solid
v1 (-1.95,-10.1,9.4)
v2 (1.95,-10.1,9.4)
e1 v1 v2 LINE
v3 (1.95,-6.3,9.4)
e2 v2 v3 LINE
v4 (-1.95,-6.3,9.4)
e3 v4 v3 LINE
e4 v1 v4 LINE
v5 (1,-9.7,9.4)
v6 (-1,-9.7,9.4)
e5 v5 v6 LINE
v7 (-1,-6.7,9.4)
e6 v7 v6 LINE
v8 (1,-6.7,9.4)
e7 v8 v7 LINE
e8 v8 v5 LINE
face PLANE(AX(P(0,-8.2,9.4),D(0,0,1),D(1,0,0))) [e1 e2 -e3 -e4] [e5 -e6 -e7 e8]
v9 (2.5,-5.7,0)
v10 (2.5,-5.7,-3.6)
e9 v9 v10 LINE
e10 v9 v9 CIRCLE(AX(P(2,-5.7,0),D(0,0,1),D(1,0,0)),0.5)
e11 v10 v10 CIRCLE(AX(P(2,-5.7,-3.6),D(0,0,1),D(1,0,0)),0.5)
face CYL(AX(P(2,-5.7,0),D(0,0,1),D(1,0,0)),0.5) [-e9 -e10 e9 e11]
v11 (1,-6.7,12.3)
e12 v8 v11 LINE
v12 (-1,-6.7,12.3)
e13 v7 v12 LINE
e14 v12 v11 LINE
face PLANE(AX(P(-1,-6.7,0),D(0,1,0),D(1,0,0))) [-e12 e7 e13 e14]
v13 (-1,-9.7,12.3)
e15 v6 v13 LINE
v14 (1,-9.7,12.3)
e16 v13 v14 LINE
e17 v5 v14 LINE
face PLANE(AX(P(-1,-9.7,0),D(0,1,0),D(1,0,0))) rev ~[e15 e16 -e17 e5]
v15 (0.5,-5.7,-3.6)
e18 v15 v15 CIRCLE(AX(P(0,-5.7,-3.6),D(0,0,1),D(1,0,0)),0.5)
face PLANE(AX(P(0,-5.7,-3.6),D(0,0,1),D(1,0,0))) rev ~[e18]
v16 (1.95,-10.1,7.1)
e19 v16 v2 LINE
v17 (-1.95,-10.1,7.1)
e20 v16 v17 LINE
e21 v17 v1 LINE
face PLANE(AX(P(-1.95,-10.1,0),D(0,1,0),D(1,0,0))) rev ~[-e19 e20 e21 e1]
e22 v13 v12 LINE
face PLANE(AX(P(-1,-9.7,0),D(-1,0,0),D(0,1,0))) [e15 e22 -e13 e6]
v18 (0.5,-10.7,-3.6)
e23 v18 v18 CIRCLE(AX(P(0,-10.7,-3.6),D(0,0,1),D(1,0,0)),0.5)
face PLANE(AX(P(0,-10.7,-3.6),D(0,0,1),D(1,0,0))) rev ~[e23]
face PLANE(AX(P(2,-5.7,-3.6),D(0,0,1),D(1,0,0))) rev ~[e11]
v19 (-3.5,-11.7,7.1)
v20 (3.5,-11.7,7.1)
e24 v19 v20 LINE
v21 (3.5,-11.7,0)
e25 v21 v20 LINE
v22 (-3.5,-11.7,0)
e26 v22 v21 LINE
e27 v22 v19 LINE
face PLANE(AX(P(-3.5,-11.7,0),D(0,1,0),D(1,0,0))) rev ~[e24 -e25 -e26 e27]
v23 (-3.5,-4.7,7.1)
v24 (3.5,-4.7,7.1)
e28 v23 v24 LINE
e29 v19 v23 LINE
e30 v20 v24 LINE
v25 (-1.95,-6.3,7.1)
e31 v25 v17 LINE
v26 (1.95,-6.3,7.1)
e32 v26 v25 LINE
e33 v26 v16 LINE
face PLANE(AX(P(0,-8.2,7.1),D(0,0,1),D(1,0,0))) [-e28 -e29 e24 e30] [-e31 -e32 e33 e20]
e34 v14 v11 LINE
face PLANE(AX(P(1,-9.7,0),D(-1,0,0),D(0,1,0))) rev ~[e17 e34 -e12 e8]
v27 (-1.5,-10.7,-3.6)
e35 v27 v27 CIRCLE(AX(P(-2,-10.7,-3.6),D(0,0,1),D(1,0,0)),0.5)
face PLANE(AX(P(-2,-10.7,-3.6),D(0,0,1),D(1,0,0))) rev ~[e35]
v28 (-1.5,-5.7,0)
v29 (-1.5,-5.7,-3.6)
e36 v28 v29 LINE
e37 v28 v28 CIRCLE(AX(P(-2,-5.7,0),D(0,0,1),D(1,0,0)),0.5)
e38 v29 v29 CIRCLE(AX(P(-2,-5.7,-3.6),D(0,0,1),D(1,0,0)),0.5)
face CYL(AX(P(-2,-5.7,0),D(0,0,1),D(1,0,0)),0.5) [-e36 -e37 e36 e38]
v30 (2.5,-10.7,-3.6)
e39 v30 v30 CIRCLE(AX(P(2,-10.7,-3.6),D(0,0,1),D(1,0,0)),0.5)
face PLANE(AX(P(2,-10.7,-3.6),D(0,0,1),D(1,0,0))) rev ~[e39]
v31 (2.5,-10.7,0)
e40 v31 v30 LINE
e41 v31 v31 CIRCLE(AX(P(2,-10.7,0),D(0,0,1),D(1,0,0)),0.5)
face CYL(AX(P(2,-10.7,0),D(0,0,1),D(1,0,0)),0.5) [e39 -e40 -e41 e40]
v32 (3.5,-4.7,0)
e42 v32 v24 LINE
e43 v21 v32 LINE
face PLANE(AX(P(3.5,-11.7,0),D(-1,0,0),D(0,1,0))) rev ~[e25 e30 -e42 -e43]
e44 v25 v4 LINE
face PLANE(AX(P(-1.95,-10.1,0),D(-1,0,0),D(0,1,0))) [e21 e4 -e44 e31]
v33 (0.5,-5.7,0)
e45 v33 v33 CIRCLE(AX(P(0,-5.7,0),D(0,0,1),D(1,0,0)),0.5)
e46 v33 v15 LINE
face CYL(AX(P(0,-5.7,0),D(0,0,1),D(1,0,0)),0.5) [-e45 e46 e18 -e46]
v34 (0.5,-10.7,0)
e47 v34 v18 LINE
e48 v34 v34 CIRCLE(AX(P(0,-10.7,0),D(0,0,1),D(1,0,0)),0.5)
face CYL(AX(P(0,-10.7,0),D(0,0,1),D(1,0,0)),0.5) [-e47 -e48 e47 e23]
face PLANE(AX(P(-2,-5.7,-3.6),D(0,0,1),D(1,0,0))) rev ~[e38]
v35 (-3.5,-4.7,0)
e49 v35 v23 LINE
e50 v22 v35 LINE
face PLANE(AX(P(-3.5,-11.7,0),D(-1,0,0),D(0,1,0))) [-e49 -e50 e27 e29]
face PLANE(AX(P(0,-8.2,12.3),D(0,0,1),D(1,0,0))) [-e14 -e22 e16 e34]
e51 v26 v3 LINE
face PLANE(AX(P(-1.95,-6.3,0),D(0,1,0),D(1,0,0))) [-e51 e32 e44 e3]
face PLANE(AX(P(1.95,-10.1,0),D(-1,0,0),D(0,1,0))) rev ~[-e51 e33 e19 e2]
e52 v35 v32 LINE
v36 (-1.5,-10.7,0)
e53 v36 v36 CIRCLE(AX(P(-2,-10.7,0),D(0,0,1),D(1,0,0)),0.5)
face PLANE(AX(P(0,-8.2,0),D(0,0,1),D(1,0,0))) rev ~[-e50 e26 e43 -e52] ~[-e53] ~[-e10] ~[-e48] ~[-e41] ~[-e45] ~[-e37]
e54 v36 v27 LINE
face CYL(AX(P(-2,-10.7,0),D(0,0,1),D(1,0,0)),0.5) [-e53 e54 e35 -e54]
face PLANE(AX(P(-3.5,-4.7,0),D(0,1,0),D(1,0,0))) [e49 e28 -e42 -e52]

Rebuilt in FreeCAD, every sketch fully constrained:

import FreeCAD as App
import Part
import Sketcher

V = App.Vector

doc = App.newDocument("Part")
body = doc.addObject("PartDesign::Body", "Body")

# Sketch on XY plane
sketch1 = body.newObject("Sketcher::SketchObject", "Sketch")
sketch1.AttachmentSupport = (doc.getObject("XY_Plane"), [""])
sketch1.MapMode = "FlatFace"
sketch1.addGeometry(Part.LineSegment(V(-4, 4, 0), V(-4, -4, 0)), False)
sketch1.addGeometry(Part.LineSegment(V(-4, -4, 0), V(4, -4, 0)), False)
sketch1.addGeometry(Part.LineSegment(V(4, -4, 0), V(4, 4, 0)), False)
sketch1.addGeometry(Part.LineSegment(V(4, 4, 0), V(-4, 4, 0)), False)
sketch1.addConstraint(Sketcher.Constraint("Coincident", 0, 2, 1, 1))
sketch1.addConstraint(Sketcher.Constraint("Coincident", 1, 2, 2, 1))
sketch1.addConstraint(Sketcher.Constraint("Coincident", 2, 2, 3, 1))
sketch1.addConstraint(Sketcher.Constraint("Coincident", 3, 2, 0, 1))
sketch1.addConstraint(Sketcher.Constraint("Vertical", 0))
sketch1.addConstraint(Sketcher.Constraint("Horizontal", 1))
sketch1.addConstraint(Sketcher.Constraint("Vertical", 2))
sketch1.addConstraint(Sketcher.Constraint("Horizontal", 3))
sketch1.addConstraint(Sketcher.Constraint("Symmetric", 0, 2, 2, 2, -1, 1))
sketch1.addConstraint(Sketcher.Constraint("Equal", 3, 0))
sketch1.addConstraint(Sketcher.Constraint("DistanceX", 1, 1, 1, 2, 7.0))
pad1 = body.newObject("PartDesign::Pad", "Pad")
pad1.Profile = sketch1
pad1.Length = 7.1

# Sketch on XY plane
sketch2 = body.newObject("Sketcher::SketchObject", "Sketch001")
sketch2.AttachmentSupport = (doc.getObject("XY_Plane"), [""])
sketch2.MapMode = "FlatFace"
sketch2.addGeometry(Part.Circle(V(0, 2.5, 0), V(0, 0, 1), 0.5), False)
sketch2.addGeometry(Part.Circle(V(0, -2.5, 0), V(0, 0, 1), 0.5), False)
sketch2.addGeometry(Part.Circle(V(2, 2.5, 0), V(0, 0, 1), 0.5), False)
sketch2.addGeometry(Part.Circle(V(-2, 2.5, 0), V(0, 0, 1), 0.5), False)
sketch2.addGeometry(Part.Circle(V(-2, -2.5, 0), V(0, 0, 1), 0.5), False)
sketch2.addGeometry(Part.Circle(V(2, -2.5, 0), V(0, 0, 1), 0.5), False)
sketch2.addConstraint(Sketcher.Constraint("Equal", 0, 1))
sketch2.addConstraint(Sketcher.Constraint("Equal", 1, 2))
sketch2.addConstraint(Sketcher.Constraint("Equal", 2, 3))
sketch2.addConstraint(Sketcher.Constraint("Equal", 3, 4))
sketch2.addConstraint(Sketcher.Constraint("Equal", 4, 5))
sketch2.addConstraint(Sketcher.Constraint("Symmetric", 0, 3, 1, 3, -1, 1))
sketch2.addConstraint(Sketcher.Constraint("Symmetric", 2, 3, 4, 3, -1, 1))
sketch2.addConstraint(Sketcher.Constraint("Symmetric", 3, 3, 5, 3, -1, 1))
sketch2.addConstraint(Sketcher.Constraint("Symmetric", 2, 3, 3, 3, -2))
sketch2.addConstraint(Sketcher.Constraint("PointOnObject", 0, 3, -2))
sketch2.addConstraint(Sketcher.Constraint("Horizontal", 0, 3, 2, 3))
sketch2.addConstraint(Sketcher.Constraint("Diameter", 0, 1.0))
sketch2.addConstraint(Sketcher.Constraint("DistanceX", -1, 1, 2, 3, 2.0))
sketch2.addConstraint(Sketcher.Constraint("DistanceY", 1, 3, 0, 3, 5.0))
pad2 = body.newObject("PartDesign::Pad", "Pad001")
pad2.Profile = sketch2
pad2.Length = 3.6
pad2.Reversed = True

# Sketch on XY plane
sketch3 = body.newObject("Sketcher::SketchObject", "Sketch002")
sketch3.AttachmentSupport = (doc.getObject("XY_Plane"), [""])
sketch3.MapMode = "FlatFace"
sketch3.addGeometry(Part.LineSegment(V(-1.9, 1.9, 0), V(-1.9, -1.9, 0)), False)
sketch3.addGeometry(Part.LineSegment(V(-1.9, -1.9, 0), V(1.9, -1.9, 0)), False)
sketch3.addGeometry(Part.LineSegment(V(1.9, -1.9, 0), V(1.9, 1.9, 0)), False)
sketch3.addGeometry(Part.LineSegment(V(1.9, 1.9, 0), V(-1.9, 1.9, 0)), False)
sketch3.addConstraint(Sketcher.Constraint("Coincident", 0, 2, 1, 1))
sketch3.addConstraint(Sketcher.Constraint("Coincident", 1, 2, 2, 1))
sketch3.addConstraint(Sketcher.Constraint("Coincident", 2, 2, 3, 1))
sketch3.addConstraint(Sketcher.Constraint("Coincident", 3, 2, 0, 1))
sketch3.addConstraint(Sketcher.Constraint("Vertical", 0))
sketch3.addConstraint(Sketcher.Constraint("Horizontal", 1))
sketch3.addConstraint(Sketcher.Constraint("Vertical", 2))
sketch3.addConstraint(Sketcher.Constraint("Horizontal", 3))
sketch3.addConstraint(Sketcher.Constraint("Symmetric", 0, 2, 2, 2, -1, 1))
sketch3.addConstraint(Sketcher.Constraint("DistanceX", 1, 1, 1, 2, 3.9))
sketch3.addConstraint(Sketcher.Constraint("DistanceY", 0, 2, 0, 1, 3.8))
pad3 = body.newObject("PartDesign::Pad", "Pad002")
pad3.Profile = sketch3
pad3.Length = 9.4

# Sketch on XY plane
sketch4 = body.newObject("Sketcher::SketchObject", "Sketch003")
sketch4.AttachmentSupport = (doc.getObject("XY_Plane"), [""])
sketch4.MapMode = "FlatFace"
sketch4.addGeometry(Part.LineSegment(V(-1, 1.5, 0), V(-1, -1.5, 0)), False)
sketch4.addGeometry(Part.LineSegment(V(-1, -1.5, 0), V(1, -1.5, 0)), False)
sketch4.addGeometry(Part.LineSegment(V(1, -1.5, 0), V(1, 1.5, 0)), False)
sketch4.addGeometry(Part.LineSegment(V(1, 1.5, 0), V(-1, 1.5, 0)), False)
sketch4.addConstraint(Sketcher.Constraint("Coincident", 0, 2, 1, 1))
sketch4.addConstraint(Sketcher.Constraint("Coincident", 1, 2, 2, 1))
sketch4.addConstraint(Sketcher.Constraint("Coincident", 2, 2, 3, 1))
sketch4.addConstraint(Sketcher.Constraint("Coincident", 3, 2, 0, 1))
sketch4.addConstraint(Sketcher.Constraint("Vertical", 0))
sketch4.addConstraint(Sketcher.Constraint("Horizontal", 1))
sketch4.addConstraint(Sketcher.Constraint("Vertical", 2))
sketch4.addConstraint(Sketcher.Constraint("Horizontal", 3))
sketch4.addConstraint(Sketcher.Constraint("Symmetric", 0, 2, 2, 2, -1, 1))
sketch4.addConstraint(Sketcher.Constraint("DistanceX", 1, 1, 1, 2, 2.0))
sketch4.addConstraint(Sketcher.Constraint("DistanceY", 0, 2, 0, 1, 3.0))
pad4 = body.newObject("PartDesign::Pad", "Pad003")
pad4.Profile = sketch4
pad4.Length = 12.3
body2 = doc.addObject("PartDesign::Body", "Body001")
doc.recompute()

body.Placement = App.Placement(V(0, -8.2, 0), App.Rotation(V(0, 0, 1), 0))
boolean = body2.newObject("PartDesign::Boolean", "Boolean")
boolean.Type = "Fuse"
boolean.addObjects([body])

doc.recompute()
